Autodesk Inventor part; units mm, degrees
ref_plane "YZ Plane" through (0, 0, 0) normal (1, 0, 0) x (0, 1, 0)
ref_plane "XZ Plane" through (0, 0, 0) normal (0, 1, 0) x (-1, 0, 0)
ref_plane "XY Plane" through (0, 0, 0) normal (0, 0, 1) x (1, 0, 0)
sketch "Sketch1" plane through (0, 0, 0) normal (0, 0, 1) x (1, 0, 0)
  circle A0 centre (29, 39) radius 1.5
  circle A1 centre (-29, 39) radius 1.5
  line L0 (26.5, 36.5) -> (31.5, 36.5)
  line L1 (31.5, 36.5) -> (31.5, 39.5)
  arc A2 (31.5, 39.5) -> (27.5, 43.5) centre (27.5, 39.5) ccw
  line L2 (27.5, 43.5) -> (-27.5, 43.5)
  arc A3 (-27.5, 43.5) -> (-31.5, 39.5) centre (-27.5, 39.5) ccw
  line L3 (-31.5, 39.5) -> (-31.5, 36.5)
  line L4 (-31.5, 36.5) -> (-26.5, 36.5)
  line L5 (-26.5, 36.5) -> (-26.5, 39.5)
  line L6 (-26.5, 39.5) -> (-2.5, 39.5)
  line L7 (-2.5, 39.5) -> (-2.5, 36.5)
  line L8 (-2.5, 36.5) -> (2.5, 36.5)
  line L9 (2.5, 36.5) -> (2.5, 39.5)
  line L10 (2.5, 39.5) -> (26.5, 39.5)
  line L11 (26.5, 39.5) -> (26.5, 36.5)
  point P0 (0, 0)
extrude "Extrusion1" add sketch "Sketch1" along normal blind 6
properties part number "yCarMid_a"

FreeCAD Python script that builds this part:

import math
import FreeCAD as App
import Part
import Sketcher

doc = App.newDocument("Part")
params = doc.addObject("Spreadsheet::Sheet", "Params")
for row, (alias, value) in enumerate([
    ("sketch1_diameter", "3 mm"),
    ("sketch1_radius", "4 mm"),
    ("sketch1_width", "5 mm"),
    ("sketch1_width2", "55 mm"),
    ("sketch1_height", "3 mm"),
    ("pad1_length", "6 mm"),
], start=1):
    params.set(f"A{row}", alias)
    params.set(f"B{row}", "=" + value)
    params.setAlias(f"B{row}", alias)

body = doc.addObject("PartDesign::Body", "Body")

# Sketch on XY plane
sketch1 = body.newObject("Sketcher::SketchObject", "Sketch")
sketch1.AttachmentSupport = (doc.getObject("XY_Plane"), [""])
sketch1.MapMode = "FlatFace"
sketch1.addGeometry(Part.LineSegment(App.Vector(26.5, 39.5, 0), App.Vector(26.5, 36.5, 0)), False)
sketch1.addGeometry(Part.LineSegment(App.Vector(26.5, 36.5, 0), App.Vector(31.5, 36.5, 0)), False)
sketch1.addGeometry(Part.LineSegment(App.Vector(31.5, 36.5, 0), App.Vector(31.5, 39.5, 0)), False)
sketch1.addGeometry(Part.ArcOfCircle(Part.Circle(App.Vector(27.5, 39.5, 0), App.Vector(0, 0, 1), 4), math.radians(0), math.radians(90)), False)
sketch1.addGeometry(Part.LineSegment(App.Vector(27.5, 43.5, 0), App.Vector(-27.5, 43.5, 0)), False)
sketch1.addGeometry(Part.ArcOfCircle(Part.Circle(App.Vector(-27.5, 39.5, 0), App.Vector(0, 0, 1), 4), math.radians(90), math.radians(180)), False)
sketch1.addGeometry(Part.LineSegment(App.Vector(-31.5, 39.5, 0), App.Vector(-31.5, 36.5, 0)), False)
sketch1.addGeometry(Part.LineSegment(App.Vector(-31.5, 36.5, 0), App.Vector(-26.5, 36.5, 0)), False)
sketch1.addGeometry(Part.LineSegment(App.Vector(-26.5, 36.5, 0), App.Vector(-26.5, 39.5, 0)), False)
sketch1.addGeometry(Part.LineSegment(App.Vector(-26.5, 39.5, 0), App.Vector(-2.5, 39.5, 0)), False)
sketch1.addGeometry(Part.LineSegment(App.Vector(-2.5, 39.5, 0), App.Vector(-2.5, 36.5, 0)), False)
sketch1.addGeometry(Part.LineSegment(App.Vector(-2.5, 36.5, 0), App.Vector(2.5, 36.5, 0)), False)
sketch1.addGeometry(Part.LineSegment(App.Vector(2.5, 36.5, 0), App.Vector(2.5, 39.5, 0)), False)
sketch1.addGeometry(Part.LineSegment(App.Vector(2.5, 39.5, 0), App.Vector(26.5, 39.5, 0)), False)
sketch1.addGeometry(Part.Circle(App.Vector(-29, 39, 0), App.Vector(0, 0, 1), 1.5), False)
sketch1.addGeometry(Part.Circle(App.Vector(29, 39, 0), App.Vector(0, 0, 1), 1.5), False)
sketch1.addConstraint(Sketcher.Constraint("Coincident", 0, 2, 1, 1))
sketch1.addConstraint(Sketcher.Constraint("Coincident", 1, 2, 2, 1))
sketch1.addConstraint(Sketcher.Constraint("Tangent", 2, 2, 3, 1))
sketch1.addConstraint(Sketcher.Constraint("Tangent", 3, 2, 4, 1))
sketch1.addConstraint(Sketcher.Constraint("Tangent", 4, 2, 5, 1))
sketch1.addConstraint(Sketcher.Constraint("Tangent", 5, 2, 6, 1))
sketch1.addConstraint(Sketcher.Constraint("Coincident", 6, 2, 7, 1))
sketch1.addConstraint(Sketcher.Constraint("Coincident", 7, 2, 8, 1))
sketch1.addConstraint(Sketcher.Constraint("Coincident", 8, 2, 9, 1))
sketch1.addConstraint(Sketcher.Constraint("Coincident", 9, 2, 10, 1))
sketch1.addConstraint(Sketcher.Constraint("Coincident", 10, 2, 11, 1))
sketch1.addConstraint(Sketcher.Constraint("Coincident", 11, 2, 12, 1))
sketch1.addConstraint(Sketcher.Constraint("Coincident", 12, 2, 13, 1))
sketch1.addConstraint(Sketcher.Constraint("Coincident", 13, 2, 0, 1))
sketch1.addConstraint(Sketcher.Constraint("Vertical", 0))
sketch1.addConstraint(Sketcher.Constraint("Horizontal", 1))
sketch1.addConstraint(Sketcher.Constraint("Vertical", 2))
sketch1.addConstraint(Sketcher.Constraint("Horizontal", 4))
sketch1.addConstraint(Sketcher.Constraint("Vertical", 6))
sketch1.addConstraint(Sketcher.Constraint("Horizontal", 7))
sketch1.addConstraint(Sketcher.Constraint("Vertical", 8))
sketch1.addConstraint(Sketcher.Constraint("Horizontal", 9))
sketch1.addConstraint(Sketcher.Constraint("Vertical", 10))
sketch1.addConstraint(Sketcher.Constraint("Horizontal", 11))
sketch1.addConstraint(Sketcher.Constraint("Vertical", 12))
sketch1.addConstraint(Sketcher.Constraint("Horizontal", 13))
sketch1.addConstraint(Sketcher.Constraint("Equal", 3, 5))
sketch1.addConstraint(Sketcher.Constraint("Equal", 14, 15))
sketch1.addConstraint(Sketcher.Constraint("Symmetric", 14, 3, 15, 3, -2))
sketch1.addConstraint(Sketcher.Constraint("Symmetric", 1, 2, 6, 2, -2))
sketch1.addConstraint(Sketcher.Constraint("Symmetric", 9, 2, 12, 2, -2))
sketch1.addConstraint(Sketcher.Constraint("Horizontal", 5, 2, 8, 2))
sketch1.addConstraint(Sketcher.Constraint("Horizontal", 7, 2, 10, 2))
sketch1.addConstraint(Sketcher.Constraint("Equal", 1, 7))
sketch1.addConstraint(Sketcher.Constraint("Equal", 7, 11))
sketch1.addConstraint(Sketcher.Constraint("Diameter", 14, 3.0))
sketch1.addConstraint(Sketcher.Constraint("Radius", 3, 4.0))
sketch1.addConstraint(Sketcher.Constraint("DistanceX", 1, 1, 1, 2, 5.0))
sketch1.addConstraint(Sketcher.Constraint("DistanceX", 4, 2, 4, 1, 55.0))
sketch1.addConstraint(Sketcher.Constraint("DistanceY", 0, 2, 0, 1, 3.0))
sketch1.addConstraint(Sketcher.Constraint("DistanceX", 14, 3, -1, 1, 29.0))
sketch1.addConstraint(Sketcher.Constraint("DistanceY", -1, 1, 14, 3, 39.0))
sketch1.addConstraint(Sketcher.Constraint("DistanceY", -1, 1, 3, 3, 39.5))
sketch1.setExpression("Constraints[35]", "Params.sketch1_diameter")
sketch1.setExpression("Constraints[36]", "Params.sketch1_radius")
sketch1.setExpression("Constraints[37]", "Params.sketch1_width")
sketch1.setExpression("Constraints[38]", "Params.sketch1_width2")
sketch1.setExpression("Constraints[39]", "Params.sketch1_height")
pad1 = body.newObject("PartDesign::Pad", "Pad")
pad1.Profile = sketch1
pad1.setExpression("Length", "Params.pad1_length")

doc.recompute()
